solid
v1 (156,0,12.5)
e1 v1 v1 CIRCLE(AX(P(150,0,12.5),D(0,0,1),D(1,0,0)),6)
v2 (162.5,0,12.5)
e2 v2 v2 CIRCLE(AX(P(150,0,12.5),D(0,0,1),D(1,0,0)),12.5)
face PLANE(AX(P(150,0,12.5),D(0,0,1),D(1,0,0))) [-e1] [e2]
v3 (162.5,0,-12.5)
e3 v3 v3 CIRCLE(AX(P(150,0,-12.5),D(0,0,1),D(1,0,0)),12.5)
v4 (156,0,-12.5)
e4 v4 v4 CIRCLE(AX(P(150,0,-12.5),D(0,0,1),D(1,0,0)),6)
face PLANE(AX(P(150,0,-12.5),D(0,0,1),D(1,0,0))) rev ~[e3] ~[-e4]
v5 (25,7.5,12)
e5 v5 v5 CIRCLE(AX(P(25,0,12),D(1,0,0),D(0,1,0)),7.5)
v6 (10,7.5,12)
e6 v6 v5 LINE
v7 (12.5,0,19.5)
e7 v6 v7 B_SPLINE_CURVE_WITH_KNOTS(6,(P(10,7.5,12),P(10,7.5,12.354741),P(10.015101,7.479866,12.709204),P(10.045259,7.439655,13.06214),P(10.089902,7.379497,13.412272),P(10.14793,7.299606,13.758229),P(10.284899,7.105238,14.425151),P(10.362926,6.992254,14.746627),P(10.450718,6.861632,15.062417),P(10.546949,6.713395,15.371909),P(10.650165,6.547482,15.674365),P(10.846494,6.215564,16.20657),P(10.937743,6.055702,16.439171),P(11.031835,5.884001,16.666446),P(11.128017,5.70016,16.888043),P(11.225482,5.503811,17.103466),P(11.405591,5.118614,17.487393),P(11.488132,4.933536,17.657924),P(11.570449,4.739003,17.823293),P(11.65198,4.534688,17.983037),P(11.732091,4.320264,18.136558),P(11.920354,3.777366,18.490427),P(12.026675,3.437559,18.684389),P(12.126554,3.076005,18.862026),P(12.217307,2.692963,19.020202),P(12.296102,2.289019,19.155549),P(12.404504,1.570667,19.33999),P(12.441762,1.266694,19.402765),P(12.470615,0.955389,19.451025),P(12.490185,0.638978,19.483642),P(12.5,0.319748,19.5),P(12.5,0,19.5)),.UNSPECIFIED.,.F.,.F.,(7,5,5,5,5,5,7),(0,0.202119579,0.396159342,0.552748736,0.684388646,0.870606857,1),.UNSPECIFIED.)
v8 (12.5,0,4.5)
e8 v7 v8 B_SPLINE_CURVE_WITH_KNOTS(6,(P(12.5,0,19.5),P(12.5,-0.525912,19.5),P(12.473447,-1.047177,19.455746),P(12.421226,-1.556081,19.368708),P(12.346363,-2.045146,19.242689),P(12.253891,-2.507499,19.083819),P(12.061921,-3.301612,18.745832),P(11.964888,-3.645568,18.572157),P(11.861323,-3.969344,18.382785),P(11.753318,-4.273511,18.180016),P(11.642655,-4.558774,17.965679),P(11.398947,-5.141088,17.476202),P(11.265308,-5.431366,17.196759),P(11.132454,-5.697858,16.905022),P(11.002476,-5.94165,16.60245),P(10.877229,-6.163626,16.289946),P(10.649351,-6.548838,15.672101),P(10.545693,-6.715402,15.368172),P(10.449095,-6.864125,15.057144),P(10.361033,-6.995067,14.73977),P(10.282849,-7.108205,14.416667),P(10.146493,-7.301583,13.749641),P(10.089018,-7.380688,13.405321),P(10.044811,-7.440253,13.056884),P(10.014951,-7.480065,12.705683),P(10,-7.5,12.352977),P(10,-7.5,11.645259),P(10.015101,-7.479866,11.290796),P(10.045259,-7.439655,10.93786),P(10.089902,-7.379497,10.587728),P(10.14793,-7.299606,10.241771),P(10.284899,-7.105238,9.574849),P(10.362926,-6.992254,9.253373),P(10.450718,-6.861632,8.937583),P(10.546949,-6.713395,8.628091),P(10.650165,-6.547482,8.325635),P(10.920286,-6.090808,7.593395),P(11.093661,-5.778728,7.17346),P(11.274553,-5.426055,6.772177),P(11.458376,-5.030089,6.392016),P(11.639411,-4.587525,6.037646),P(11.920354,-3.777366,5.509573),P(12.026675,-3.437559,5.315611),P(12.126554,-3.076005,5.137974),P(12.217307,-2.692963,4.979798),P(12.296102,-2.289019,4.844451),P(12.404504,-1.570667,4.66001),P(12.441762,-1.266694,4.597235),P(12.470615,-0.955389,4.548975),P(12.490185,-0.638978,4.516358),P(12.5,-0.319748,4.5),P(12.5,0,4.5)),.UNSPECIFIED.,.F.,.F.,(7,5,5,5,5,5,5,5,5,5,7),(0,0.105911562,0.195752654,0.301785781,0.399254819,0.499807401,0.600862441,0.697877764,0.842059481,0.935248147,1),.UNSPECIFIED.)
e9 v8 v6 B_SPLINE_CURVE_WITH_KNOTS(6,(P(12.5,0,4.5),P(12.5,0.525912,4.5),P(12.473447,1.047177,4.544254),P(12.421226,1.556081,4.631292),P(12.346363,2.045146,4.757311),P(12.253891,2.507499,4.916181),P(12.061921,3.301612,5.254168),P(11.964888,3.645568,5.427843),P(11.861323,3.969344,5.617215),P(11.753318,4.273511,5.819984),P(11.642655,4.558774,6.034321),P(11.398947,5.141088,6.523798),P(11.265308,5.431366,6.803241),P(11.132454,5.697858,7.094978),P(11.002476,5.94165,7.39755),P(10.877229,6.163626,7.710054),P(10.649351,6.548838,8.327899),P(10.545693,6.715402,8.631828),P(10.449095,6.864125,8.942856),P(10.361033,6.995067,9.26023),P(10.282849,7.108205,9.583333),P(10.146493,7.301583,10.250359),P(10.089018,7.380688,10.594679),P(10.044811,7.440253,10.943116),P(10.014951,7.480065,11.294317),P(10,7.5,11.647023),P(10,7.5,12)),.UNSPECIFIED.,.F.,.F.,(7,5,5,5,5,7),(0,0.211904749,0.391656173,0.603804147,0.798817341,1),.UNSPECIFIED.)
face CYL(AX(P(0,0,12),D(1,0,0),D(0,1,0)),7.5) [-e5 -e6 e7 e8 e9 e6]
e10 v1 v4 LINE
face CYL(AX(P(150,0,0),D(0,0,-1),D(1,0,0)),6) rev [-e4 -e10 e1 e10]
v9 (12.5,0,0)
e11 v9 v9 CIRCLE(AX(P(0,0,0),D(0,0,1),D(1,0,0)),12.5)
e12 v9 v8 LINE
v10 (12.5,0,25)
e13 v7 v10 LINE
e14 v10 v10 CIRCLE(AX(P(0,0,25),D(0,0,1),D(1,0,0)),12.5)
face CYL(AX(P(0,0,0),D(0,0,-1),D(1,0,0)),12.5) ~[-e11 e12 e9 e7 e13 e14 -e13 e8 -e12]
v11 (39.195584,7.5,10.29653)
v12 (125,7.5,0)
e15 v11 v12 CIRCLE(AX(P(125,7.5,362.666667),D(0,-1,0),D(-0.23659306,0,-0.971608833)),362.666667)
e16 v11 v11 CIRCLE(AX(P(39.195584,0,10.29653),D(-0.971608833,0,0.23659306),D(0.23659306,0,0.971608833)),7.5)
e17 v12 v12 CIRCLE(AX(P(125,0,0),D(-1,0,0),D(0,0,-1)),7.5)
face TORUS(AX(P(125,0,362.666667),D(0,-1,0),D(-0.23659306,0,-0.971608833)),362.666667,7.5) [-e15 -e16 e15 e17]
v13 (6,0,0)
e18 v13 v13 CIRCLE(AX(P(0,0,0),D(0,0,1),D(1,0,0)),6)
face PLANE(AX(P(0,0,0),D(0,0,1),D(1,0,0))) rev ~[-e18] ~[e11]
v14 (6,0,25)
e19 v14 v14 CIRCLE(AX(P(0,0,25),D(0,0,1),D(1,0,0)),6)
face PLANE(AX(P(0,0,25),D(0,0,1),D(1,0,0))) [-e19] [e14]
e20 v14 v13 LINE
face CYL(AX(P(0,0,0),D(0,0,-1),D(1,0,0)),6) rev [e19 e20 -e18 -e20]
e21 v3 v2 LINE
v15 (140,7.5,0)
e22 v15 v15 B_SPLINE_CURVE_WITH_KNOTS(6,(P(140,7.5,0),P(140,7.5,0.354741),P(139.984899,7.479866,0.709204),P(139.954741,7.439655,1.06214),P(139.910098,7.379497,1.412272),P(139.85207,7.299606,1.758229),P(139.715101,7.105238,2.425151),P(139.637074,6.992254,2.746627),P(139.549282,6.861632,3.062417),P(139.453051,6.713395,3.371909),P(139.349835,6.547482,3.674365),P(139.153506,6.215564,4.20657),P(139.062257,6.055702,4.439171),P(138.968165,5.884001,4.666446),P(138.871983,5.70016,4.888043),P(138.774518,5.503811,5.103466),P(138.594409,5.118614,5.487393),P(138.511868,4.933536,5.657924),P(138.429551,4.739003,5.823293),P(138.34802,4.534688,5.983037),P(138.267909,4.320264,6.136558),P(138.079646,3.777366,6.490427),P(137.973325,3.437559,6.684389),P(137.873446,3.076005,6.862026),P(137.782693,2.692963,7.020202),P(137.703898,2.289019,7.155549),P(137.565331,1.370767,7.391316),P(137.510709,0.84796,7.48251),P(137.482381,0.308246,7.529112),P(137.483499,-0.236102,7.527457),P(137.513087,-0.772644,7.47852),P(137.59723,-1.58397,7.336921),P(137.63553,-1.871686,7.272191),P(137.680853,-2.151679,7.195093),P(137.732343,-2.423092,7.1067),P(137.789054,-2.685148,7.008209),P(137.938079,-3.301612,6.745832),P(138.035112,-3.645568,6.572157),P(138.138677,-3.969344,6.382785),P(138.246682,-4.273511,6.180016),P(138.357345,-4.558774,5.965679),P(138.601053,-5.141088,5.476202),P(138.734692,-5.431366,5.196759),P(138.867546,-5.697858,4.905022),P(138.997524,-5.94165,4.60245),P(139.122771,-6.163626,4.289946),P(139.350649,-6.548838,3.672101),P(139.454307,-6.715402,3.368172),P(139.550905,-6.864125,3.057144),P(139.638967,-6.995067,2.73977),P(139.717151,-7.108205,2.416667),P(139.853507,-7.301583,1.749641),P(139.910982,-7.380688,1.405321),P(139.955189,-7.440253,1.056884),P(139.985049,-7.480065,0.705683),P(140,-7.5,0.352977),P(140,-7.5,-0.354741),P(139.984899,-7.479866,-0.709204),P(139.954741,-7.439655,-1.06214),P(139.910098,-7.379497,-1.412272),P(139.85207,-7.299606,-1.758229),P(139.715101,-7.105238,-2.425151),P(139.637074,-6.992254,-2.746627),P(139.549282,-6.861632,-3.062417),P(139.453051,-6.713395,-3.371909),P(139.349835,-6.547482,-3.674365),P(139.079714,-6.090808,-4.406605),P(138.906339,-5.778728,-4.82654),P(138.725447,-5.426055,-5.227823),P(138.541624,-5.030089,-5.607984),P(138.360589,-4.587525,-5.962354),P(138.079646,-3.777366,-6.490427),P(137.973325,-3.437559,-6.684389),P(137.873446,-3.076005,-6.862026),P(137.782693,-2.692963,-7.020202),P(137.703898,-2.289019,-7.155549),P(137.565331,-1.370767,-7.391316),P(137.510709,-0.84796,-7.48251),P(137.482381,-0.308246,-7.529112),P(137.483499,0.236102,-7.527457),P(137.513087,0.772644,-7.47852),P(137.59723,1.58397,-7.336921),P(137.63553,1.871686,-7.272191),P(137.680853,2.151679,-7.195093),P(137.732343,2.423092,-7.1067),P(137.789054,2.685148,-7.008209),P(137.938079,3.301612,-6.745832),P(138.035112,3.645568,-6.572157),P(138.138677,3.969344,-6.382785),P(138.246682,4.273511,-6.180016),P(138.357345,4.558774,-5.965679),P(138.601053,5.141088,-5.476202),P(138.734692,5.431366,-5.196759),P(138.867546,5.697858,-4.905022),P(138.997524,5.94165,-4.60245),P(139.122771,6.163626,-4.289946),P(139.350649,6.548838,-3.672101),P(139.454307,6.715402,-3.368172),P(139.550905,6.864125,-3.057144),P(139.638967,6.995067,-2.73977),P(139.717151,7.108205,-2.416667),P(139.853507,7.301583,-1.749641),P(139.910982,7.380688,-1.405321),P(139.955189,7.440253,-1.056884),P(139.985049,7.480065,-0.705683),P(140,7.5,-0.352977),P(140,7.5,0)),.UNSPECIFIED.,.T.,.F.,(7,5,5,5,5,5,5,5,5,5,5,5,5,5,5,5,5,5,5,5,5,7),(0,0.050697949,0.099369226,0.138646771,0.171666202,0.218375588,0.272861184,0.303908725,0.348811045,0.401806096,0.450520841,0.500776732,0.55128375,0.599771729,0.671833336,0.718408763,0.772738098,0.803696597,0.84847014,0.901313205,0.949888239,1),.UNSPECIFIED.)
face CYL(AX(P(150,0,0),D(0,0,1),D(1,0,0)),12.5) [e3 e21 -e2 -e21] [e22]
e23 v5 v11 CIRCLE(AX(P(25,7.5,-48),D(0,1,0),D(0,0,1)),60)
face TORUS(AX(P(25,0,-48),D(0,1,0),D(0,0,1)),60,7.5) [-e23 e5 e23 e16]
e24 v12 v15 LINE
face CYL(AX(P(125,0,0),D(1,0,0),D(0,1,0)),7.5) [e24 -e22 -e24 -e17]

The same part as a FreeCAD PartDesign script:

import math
import FreeCAD as App
import Part
import Sketcher

V = App.Vector
Q = App.Units.Quantity

doc = App.newDocument("Part")
params = doc.addObject("Spreadsheet::Sheet", "Params")
for row, (alias, value) in enumerate([
    ("sketch1_diameter", "25 mm"),
    ("sketch1_diameter2", "12 mm"),
    ("pad1_length", "25 mm"),
    ("sketch2_diameter", "25 mm"),
    ("sketch2_diameter2", "12 mm"),
    ("pad2_length", "12.5 mm"),
    ("pad2_length2", "12.5 mm"),
    ("sketch3_diameter", "15 mm"),
    ("sketch4_radius", "60 mm"),
    ("sketch4_width", "25 mm"),
    ("sketch5_diameter", "12 mm"),
    ("sketch6_diameter", "12 mm"),
], start=1):
    params.set(f"A{row}", alias)
    params.set(f"B{row}", "=" + value)
    params.setAlias(f"B{row}", alias)

body = doc.addObject("PartDesign::Body", "Body")

# Sketch on XY plane
sketch1 = body.newObject("Sketcher::SketchObject", "Sketch")
sketch1.AttachmentSupport = (doc.getObject("XY_Plane"), [""])
sketch1.MapMode = "FlatFace"
sketch1.addGeometry(Part.Circle(V(0, 0, 0), V(0, 0, 1), 12), False)
sketch1.addGeometry(Part.Circle(V(0, 0, 0), V(0, 0, 1), 6), False)
sketch1.addConstraint(Sketcher.Constraint("Coincident", 0, 3, -1, 1))
sketch1.addConstraint(Sketcher.Constraint("Coincident", 1, 3, -1, 1))
sketch1.addConstraint(Sketcher.Constraint("Diameter", 0, Q("25 mm")))
sketch1.addConstraint(Sketcher.Constraint("Diameter", 1, Q("12 mm")))
sketch1.setExpression("Constraints[2]", "Params.sketch1_diameter")
sketch1.setExpression("Constraints[3]", "Params.sketch1_diameter2")
pad1 = body.newObject("PartDesign::Pad", "Pad")
pad1.Profile = sketch1
pad1.setExpression("Length", "Params.pad1_length")
body2 = doc.addObject("PartDesign::Body", "Body001")

# Sketch on XY plane
sketch2 = body2.newObject("Sketcher::SketchObject", "Sketch001")
sketch2.AttachmentSupport = (doc.getObject("XY_Plane001"), [""])
sketch2.MapMode = "FlatFace"
sketch2.addGeometry(Part.Circle(V(150, 0, 0), V(0, 0, 1), 12), False)
sketch2.addGeometry(Part.Circle(V(150, 0, 0), V(0, 0, 1), 6), False)
sketch2.addConstraint(Sketcher.Constraint("Coincident", 1, 3, 0, 3))
sketch2.addConstraint(Sketcher.Constraint("PointOnObject", 0, 3, -1))
sketch2.addConstraint(Sketcher.Constraint("Diameter", 0, Q("25 mm")))
sketch2.addConstraint(Sketcher.Constraint("Diameter", 1, Q("12 mm")))
sketch2.addConstraint(Sketcher.Constraint("DistanceX", -1, 1, 0, 3, Q("150 mm")))
sketch2.setExpression("Constraints[2]", "Params.sketch2_diameter")
sketch2.setExpression("Constraints[3]", "Params.sketch2_diameter2")
pad2 = body2.newObject("PartDesign::Pad", "Pad001")
pad2.Profile = sketch2
pad2.Type = "TwoLengths"
pad2.setExpression("Length", "Params.pad2_length")
pad2.setExpression("Length2", "Params.pad2_length2")
body.AllowCompound = True
doc.recompute()

boolean = body.newObject("PartDesign::Boolean", "Boolean")
boolean.Type = "Fuse"
boolean.addObjects([body2])

# Sketch on YZ plane
sketch3 = body.newObject("Sketcher::SketchObject", "Sketch002")
sketch3.AttachmentSupport = (doc.getObject("YZ_Plane"), [""])
sketch3.MapMode = "FlatFace"
sketch3.addGeometry(Part.Circle(V(0, 12, 0), V(0, 0, 1), 8), False)
sketch3.addConstraint(Sketcher.Constraint("PointOnObject", 0, 3, -2))
sketch3.addConstraint(Sketcher.Constraint("Diameter", 0, Q("15 mm")))
sketch3.addConstraint(Sketcher.Constraint("DistanceY", -1, 1, 0, 3, Q("12 mm")))
sketch3.setExpression("Constraints[1]", "Params.sketch3_diameter")

# Sketch on XZ plane
sketch4 = body.newObject("Sketcher::SketchObject", "Sketch003")
sketch4.AttachmentSupport = (doc.getObject("XZ_Plane"), [""])
sketch4.MapMode = "FlatFace"
sketch4.addGeometry(Part.LineSegment(V(0, 12, 0), V(25, 12, 0)), False)
sketch4.addGeometry(Part.ArcOfCircle(Part.Circle(V(25, -48, 0), V(0, 0, 1), 60), math.radians(76.31), math.radians(90)), False)
sketch4.addGeometry(Part.ArcOfCircle(Part.Circle(V(125, 363, 0), V(0, 0, 1), 363), math.radians(-103.69), math.radians(-90)), False)
sketch4.addGeometry(Part.LineSegment(V(125, 0, 0), V(150, 0, 0)), False)
sketch4.addConstraint(Sketcher.Constraint("Tangent", 0, 2, 1, 2))
sketch4.addConstraint(Sketcher.Constraint("Tangent", 1, 1, 2, 1))
sketch4.addConstraint(Sketcher.Constraint("Tangent", 2, 2, 3, 1))
sketch4.addConstraint(Sketcher.Constraint("Horizontal", 0))
sketch4.addConstraint(Sketcher.Constraint("Horizontal", 3))
sketch4.addConstraint(Sketcher.Constraint("PointOnObject", 0, 1, -2))
sketch4.addConstraint(Sketcher.Constraint("PointOnObject", 2, 2, -1))
sketch4.addConstraint(Sketcher.Constraint("Equal", 0, 3))
sketch4.addConstraint(Sketcher.Constraint("Radius", 1, Q("60 mm")))
sketch4.addConstraint(Sketcher.Constraint("DistanceX", 0, 1, 0, 2, Q("25 mm")))
sketch4.addConstraint(Sketcher.Constraint("DistanceY", 1, 3, -1, 1, Q("48 mm")))
sketch4.addConstraint(Sketcher.Constraint("DistanceX", -1, 1, 2, 3, Q("125 mm")))
sketch4.setExpression("Constraints[8]", "Params.sketch4_radius")
sketch4.setExpression("Constraints[9]", "Params.sketch4_width")
doc.recompute()

additivepipe = body.newObject("PartDesign::AdditivePipe", "AdditivePipe")
additivepipe.Profile = sketch3
additivepipe.Spine = (sketch4, ["Edge1", "Edge2", "Edge3", "Edge4"])

# Sketch on XY plane
sketch5 = body.newObject("Sketcher::SketchObject", "Sketch004")
sketch5.AttachmentSupport = (doc.getObject("XY_Plane"), [""])
sketch5.MapMode = "FlatFace"
sketch5.AttachmentOffset = App.Placement(V(0, 0, 25), App.Rotation())
sketch5.addGeometry(Part.Circle(V(0, 0, 0), V(0, 0, 1), 6), False)
sketch5.addConstraint(Sketcher.Constraint("Coincident", 0, 3, -1, 1))
sketch5.addConstraint(Sketcher.Constraint("Diameter", 0, Q("12 mm")))
sketch5.setExpression("Constraints[1]", "Params.sketch5_diameter")
pocket1 = body.newObject("PartDesign::Pocket", "Pocket")
pocket1.Profile = sketch5
pocket1.Type = "ThroughAll"

# Sketch on XY plane
sketch6 = body.newObject("Sketcher::SketchObject", "Sketch005")
sketch6.AttachmentSupport = (doc.getObject("XY_Plane"), [""])
sketch6.MapMode = "FlatFace"
sketch6.AttachmentOffset = App.Placement(V(0, 0, 12.5), App.Rotation())
sketch6.addGeometry(Part.Circle(V(150, 0, 0), V(0, 0, 1), 6), False)
sketch6.addConstraint(Sketcher.Constraint("PointOnObject", 0, 3, -1))
sketch6.addConstraint(Sketcher.Constraint("Diameter", 0, Q("12 mm")))
sketch6.addConstraint(Sketcher.Constraint("DistanceX", -1, 1, 0, 3, Q("150 mm")))
sketch6.setExpression("Constraints[1]", "Params.sketch6_diameter")
pocket2 = body.newObject("PartDesign::Pocket", "Pocket001")
pocket2.Profile = sketch6
pocket2.Type = "ThroughAll"

doc.recompute()
